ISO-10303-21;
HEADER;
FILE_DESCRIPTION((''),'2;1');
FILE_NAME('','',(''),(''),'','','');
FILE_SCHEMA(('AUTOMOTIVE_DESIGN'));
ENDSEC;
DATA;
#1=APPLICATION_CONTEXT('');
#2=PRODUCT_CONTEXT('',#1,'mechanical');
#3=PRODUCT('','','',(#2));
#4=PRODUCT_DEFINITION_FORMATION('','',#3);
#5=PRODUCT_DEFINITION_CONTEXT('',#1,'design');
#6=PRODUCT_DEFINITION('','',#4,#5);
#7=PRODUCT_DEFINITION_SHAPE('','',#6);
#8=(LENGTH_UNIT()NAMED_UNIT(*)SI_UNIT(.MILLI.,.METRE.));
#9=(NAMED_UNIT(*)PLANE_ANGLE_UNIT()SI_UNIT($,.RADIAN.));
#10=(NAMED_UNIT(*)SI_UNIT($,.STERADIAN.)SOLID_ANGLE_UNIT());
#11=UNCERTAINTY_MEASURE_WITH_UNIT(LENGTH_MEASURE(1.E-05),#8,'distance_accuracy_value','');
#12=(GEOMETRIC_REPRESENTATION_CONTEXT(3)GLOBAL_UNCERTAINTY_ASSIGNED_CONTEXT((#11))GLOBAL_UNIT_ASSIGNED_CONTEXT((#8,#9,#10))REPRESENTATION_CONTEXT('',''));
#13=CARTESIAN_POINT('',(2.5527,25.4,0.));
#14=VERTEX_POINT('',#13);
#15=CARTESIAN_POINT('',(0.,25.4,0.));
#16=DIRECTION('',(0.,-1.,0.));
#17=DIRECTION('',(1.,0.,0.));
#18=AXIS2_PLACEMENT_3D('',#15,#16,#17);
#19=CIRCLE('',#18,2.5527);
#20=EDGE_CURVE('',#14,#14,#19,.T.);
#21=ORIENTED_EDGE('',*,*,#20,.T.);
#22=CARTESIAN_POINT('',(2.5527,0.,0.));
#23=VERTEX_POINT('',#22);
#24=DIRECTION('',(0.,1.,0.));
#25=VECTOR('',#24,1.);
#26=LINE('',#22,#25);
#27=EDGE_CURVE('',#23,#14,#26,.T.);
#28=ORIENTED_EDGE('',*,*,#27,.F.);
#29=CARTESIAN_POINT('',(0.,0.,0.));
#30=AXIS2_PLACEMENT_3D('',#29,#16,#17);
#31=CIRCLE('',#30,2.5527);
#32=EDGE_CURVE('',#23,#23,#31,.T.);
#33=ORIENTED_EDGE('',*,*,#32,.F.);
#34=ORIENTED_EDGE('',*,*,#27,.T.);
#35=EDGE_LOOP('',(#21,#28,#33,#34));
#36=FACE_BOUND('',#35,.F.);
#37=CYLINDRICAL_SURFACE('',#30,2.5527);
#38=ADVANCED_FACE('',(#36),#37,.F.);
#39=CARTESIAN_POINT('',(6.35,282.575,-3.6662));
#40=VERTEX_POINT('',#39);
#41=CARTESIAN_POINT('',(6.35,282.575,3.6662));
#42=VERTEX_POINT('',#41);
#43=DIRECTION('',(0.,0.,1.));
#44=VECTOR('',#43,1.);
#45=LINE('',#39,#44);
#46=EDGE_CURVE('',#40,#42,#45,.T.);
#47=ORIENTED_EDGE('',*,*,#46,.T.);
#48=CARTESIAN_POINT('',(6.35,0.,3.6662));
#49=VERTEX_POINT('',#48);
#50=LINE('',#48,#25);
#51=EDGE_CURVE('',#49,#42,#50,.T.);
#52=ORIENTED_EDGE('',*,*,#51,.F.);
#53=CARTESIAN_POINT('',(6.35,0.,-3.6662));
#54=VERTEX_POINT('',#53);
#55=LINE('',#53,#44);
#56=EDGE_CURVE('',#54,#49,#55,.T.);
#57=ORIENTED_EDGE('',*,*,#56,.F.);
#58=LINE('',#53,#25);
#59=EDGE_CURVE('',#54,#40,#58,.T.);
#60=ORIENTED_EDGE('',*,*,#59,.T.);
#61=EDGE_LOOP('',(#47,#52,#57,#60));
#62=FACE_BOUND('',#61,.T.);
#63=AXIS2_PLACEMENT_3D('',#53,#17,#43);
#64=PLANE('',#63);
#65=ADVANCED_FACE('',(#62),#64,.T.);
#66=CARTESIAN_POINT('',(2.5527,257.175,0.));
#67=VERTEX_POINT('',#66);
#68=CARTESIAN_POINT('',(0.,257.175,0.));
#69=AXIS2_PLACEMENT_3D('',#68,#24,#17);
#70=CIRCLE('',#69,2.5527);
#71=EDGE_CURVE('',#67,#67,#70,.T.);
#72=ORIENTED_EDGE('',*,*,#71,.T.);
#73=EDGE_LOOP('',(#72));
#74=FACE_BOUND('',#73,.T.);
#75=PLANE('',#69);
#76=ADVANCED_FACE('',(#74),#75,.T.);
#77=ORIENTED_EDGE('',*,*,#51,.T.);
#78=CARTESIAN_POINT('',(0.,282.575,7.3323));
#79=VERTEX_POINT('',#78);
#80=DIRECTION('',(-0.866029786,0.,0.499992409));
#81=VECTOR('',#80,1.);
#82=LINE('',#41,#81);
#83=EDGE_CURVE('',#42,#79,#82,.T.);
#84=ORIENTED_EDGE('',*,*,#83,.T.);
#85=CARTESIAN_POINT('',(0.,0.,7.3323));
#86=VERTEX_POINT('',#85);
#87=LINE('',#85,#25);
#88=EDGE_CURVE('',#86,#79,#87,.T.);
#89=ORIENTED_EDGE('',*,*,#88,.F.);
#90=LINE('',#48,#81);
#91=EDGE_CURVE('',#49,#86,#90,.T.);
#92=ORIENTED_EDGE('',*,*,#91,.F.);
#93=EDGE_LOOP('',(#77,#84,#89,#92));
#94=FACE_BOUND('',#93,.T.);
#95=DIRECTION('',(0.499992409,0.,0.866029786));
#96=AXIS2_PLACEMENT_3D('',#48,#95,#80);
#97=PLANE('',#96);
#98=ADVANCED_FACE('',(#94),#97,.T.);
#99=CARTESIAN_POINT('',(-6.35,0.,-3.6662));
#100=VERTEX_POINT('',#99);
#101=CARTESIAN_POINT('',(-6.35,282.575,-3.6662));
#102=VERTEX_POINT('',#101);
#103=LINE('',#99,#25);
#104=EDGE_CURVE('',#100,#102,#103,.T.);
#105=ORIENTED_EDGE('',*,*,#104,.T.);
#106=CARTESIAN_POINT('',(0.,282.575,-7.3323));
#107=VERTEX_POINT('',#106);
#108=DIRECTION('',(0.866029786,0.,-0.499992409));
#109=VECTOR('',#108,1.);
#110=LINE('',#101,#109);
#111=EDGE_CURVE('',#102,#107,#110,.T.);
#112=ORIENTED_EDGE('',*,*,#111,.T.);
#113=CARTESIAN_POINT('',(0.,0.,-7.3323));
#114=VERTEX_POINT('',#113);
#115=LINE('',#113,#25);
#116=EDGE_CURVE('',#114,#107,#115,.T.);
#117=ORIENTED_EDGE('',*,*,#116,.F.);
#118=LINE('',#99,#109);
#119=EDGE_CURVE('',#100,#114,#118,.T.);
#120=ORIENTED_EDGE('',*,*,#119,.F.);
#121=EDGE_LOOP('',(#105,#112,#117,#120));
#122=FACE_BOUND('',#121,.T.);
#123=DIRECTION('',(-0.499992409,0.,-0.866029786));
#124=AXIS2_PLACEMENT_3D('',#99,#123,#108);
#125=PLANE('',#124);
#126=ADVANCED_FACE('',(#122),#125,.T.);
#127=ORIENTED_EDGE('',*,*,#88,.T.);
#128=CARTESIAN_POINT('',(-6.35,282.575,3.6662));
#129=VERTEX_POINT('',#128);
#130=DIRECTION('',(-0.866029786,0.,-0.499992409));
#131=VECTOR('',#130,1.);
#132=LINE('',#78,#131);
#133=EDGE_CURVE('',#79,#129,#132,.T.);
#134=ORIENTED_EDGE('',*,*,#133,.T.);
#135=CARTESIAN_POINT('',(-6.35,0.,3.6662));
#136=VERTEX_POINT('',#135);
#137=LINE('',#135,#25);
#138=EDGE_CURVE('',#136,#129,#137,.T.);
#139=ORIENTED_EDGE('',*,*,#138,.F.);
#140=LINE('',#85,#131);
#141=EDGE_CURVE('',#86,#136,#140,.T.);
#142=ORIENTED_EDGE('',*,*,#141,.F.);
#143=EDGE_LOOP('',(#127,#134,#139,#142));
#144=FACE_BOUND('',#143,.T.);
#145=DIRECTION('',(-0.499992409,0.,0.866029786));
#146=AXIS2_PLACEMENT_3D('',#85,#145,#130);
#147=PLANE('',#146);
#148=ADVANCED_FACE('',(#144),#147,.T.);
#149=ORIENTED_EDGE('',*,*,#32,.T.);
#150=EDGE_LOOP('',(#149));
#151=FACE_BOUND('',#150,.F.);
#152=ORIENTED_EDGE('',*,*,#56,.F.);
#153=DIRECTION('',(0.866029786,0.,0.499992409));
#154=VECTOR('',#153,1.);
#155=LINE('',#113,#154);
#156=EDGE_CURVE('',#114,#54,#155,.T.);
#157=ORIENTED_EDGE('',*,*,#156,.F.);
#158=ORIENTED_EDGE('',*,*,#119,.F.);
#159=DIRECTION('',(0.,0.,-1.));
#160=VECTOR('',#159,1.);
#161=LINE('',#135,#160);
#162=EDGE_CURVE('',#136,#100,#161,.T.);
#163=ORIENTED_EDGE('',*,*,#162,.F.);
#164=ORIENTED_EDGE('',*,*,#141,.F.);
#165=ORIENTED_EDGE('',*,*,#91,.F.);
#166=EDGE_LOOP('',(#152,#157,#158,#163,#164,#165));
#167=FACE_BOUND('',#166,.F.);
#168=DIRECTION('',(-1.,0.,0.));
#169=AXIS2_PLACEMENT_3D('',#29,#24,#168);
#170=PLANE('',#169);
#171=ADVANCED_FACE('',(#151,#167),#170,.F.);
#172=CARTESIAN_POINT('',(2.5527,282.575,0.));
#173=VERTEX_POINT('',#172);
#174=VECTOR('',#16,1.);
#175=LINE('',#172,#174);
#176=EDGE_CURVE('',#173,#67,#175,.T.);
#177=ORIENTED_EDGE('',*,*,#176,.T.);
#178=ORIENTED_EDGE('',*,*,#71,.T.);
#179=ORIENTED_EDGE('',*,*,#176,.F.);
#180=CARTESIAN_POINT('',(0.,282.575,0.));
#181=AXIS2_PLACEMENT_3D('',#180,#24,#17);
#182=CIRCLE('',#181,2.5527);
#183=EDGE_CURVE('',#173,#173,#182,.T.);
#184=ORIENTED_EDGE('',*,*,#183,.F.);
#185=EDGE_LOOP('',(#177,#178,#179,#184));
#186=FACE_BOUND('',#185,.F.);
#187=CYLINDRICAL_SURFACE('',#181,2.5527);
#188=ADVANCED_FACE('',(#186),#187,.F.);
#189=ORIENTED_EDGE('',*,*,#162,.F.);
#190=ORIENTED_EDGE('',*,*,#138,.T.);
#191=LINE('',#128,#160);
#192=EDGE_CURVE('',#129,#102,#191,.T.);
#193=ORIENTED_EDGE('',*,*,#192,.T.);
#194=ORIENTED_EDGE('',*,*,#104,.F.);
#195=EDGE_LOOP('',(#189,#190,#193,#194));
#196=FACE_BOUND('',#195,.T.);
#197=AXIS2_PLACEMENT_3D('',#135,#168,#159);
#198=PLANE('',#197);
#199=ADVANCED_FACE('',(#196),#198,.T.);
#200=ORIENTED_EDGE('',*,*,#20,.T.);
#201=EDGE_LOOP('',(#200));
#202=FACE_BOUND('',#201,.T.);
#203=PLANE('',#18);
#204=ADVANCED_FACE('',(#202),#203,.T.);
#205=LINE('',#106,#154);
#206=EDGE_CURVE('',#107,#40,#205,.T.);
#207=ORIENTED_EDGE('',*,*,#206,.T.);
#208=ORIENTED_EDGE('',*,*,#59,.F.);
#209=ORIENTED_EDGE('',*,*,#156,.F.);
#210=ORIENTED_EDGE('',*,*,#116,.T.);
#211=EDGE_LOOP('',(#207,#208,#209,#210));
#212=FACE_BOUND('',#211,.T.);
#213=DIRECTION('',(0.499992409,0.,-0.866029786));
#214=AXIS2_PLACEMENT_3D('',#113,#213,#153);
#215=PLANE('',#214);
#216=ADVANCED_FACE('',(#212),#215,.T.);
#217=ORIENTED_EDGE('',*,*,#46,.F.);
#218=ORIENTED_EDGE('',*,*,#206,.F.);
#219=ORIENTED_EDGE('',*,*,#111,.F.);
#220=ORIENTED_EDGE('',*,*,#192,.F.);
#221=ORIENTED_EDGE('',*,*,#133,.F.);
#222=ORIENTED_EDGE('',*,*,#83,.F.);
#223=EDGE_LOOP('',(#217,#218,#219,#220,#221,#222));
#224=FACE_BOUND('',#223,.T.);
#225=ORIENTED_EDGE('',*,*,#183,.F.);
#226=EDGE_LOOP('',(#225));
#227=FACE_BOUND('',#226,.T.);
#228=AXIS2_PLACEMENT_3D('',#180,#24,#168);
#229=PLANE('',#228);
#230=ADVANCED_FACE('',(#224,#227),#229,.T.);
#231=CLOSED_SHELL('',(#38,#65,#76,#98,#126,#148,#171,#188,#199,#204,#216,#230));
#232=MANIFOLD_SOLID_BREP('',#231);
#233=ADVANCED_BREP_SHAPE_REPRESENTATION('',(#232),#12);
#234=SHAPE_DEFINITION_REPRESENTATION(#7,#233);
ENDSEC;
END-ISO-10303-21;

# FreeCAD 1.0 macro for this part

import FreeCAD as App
import Part
import Sketcher
Q = App.Units.Quantity

doc = App.newDocument("Part")
params = doc.addObject("Spreadsheet::Sheet", "Params")
for row, (alias, value) in enumerate([
    ("pad1_length", "11.125 in"),
    ("sketch2_diameter", "0.201 in"),
    ("pocket1_length", "1 in"),
    ("sketch3_diameter", "0.201 in"),
    ("pocket2_length", "1 in"),
], start=1):
    params.set(f"A{row}", alias)
    params.set(f"B{row}", "=" + value)
    params.setAlias(f"B{row}", alias)

body = doc.addObject("PartDesign::Body", "Body")

# Sketch on XZ plane
sketch1 = body.newObject("Sketcher::SketchObject", "Sketch")
sketch1.AttachmentSupport = (doc.getObject("XZ_Plane"), [""])
sketch1.MapMode = "FlatFace"
sketch1.addGeometry([
    Part.LineSegment(App.Vector(6, 4, 0), App.Vector(6, -4, 0)),  # 0
    Part.LineSegment(App.Vector(6, -4, 0), App.Vector(0, -7, 0)),  # 1
    Part.LineSegment(App.Vector(0, -7, 0), App.Vector(-6, -4, 0)),  # 2
    Part.LineSegment(App.Vector(-6, -4, 0), App.Vector(-6, 4, 0)),  # 3
    Part.LineSegment(App.Vector(-6, 4, 0), App.Vector(0, 7, 0)),  # 4
    Part.LineSegment(App.Vector(0, 7, 0), App.Vector(6, 4, 0)),  # 5
], False)
sketch1.addConstraint([
    Sketcher.Constraint("Coincident", 0, 2, 1, 1),
    Sketcher.Constraint("Coincident", 1, 2, 2, 1),
    Sketcher.Constraint("Coincident", 2, 2, 3, 1),
    Sketcher.Constraint("Coincident", 3, 2, 4, 1),
    Sketcher.Constraint("Coincident", 4, 2, 5, 1),
    Sketcher.Constraint("Coincident", 5, 2, 0, 1),
    Sketcher.Constraint("Vertical", 0),
    Sketcher.Constraint("Vertical", 3),
    Sketcher.Constraint("Symmetric", 0, 2, 3, 2, -1, 1),
    Sketcher.Constraint("Symmetric", 1, 2, 4, 2, -1, 1),
    Sketcher.Constraint("PointOnObject", 1, 2, -2),
    Sketcher.Constraint("Parallel", 2, 5),
    Sketcher.Constraint("Horizontal", 0, 2, 2, 2),
    Sketcher.Constraint("DistanceX", 2, 2, 0, 2, Q("0.5 in")),
    Sketcher.Constraint("Angle", 1, Q("-150.0005 deg")),
    Sketcher.Constraint("DistanceY", 1, 2, 3, 2, Q("0.433 in")),
])
pad1 = body.newObject("PartDesign::Pad", "Pad")
pad1.Profile = sketch1
pad1.setExpression("Length", "Params.pad1_length")
pad1.Reversed = True

# Sketch on XZ plane
sketch2 = body.newObject("Sketcher::SketchObject", "Sketch001")
sketch2.AttachmentSupport = (doc.getObject("XZ_Plane"), [""])
sketch2.MapMode = "FlatFace"
sketch2.AttachmentOffset = App.Placement(App.Vector(0, 0, -11.125 * 25.4), App.Rotation())
sketch2.addGeometry(Part.Circle(App.Vector(0, 0, 0), App.Vector(0, 0, 1), 2.6), False)
sketch2.addConstraint([
    Sketcher.Constraint("Coincident", 0, 3, -1, 1),
    Sketcher.Constraint("Diameter", 0, Q("0.201 in")),
])
sketch2.setExpression("Constraints[1]", "Params.sketch2_diameter")
pocket1 = body.newObject("PartDesign::Pocket", "Pocket")
pocket1.Profile = sketch2
pocket1.setExpression("Length", "Params.pocket1_length")
pocket1.Reversed = True

# Sketch on XZ plane
sketch3 = body.newObject("Sketcher::SketchObject", "Sketch002")
sketch3.AttachmentSupport = (doc.getObject("XZ_Plane"), [""])
sketch3.MapMode = "FlatFace"
sketch3.addGeometry(Part.Circle(App.Vector(0, 0, 0), App.Vector(0, 0, 1), 2.6), False)
sketch3.addConstraint([
    Sketcher.Constraint("Coincident", 0, 3, -1, 1),
    Sketcher.Constraint("Diameter", 0, Q("0.201 in")),
])
sketch3.setExpression("Constraints[1]", "Params.sketch3_diameter")
pocket2 = body.newObject("PartDesign::Pocket", "Pocket001")
pocket2.Profile = sketch3
pocket2.setExpression("Length", "Params.pocket2_length")

doc.recompute()
